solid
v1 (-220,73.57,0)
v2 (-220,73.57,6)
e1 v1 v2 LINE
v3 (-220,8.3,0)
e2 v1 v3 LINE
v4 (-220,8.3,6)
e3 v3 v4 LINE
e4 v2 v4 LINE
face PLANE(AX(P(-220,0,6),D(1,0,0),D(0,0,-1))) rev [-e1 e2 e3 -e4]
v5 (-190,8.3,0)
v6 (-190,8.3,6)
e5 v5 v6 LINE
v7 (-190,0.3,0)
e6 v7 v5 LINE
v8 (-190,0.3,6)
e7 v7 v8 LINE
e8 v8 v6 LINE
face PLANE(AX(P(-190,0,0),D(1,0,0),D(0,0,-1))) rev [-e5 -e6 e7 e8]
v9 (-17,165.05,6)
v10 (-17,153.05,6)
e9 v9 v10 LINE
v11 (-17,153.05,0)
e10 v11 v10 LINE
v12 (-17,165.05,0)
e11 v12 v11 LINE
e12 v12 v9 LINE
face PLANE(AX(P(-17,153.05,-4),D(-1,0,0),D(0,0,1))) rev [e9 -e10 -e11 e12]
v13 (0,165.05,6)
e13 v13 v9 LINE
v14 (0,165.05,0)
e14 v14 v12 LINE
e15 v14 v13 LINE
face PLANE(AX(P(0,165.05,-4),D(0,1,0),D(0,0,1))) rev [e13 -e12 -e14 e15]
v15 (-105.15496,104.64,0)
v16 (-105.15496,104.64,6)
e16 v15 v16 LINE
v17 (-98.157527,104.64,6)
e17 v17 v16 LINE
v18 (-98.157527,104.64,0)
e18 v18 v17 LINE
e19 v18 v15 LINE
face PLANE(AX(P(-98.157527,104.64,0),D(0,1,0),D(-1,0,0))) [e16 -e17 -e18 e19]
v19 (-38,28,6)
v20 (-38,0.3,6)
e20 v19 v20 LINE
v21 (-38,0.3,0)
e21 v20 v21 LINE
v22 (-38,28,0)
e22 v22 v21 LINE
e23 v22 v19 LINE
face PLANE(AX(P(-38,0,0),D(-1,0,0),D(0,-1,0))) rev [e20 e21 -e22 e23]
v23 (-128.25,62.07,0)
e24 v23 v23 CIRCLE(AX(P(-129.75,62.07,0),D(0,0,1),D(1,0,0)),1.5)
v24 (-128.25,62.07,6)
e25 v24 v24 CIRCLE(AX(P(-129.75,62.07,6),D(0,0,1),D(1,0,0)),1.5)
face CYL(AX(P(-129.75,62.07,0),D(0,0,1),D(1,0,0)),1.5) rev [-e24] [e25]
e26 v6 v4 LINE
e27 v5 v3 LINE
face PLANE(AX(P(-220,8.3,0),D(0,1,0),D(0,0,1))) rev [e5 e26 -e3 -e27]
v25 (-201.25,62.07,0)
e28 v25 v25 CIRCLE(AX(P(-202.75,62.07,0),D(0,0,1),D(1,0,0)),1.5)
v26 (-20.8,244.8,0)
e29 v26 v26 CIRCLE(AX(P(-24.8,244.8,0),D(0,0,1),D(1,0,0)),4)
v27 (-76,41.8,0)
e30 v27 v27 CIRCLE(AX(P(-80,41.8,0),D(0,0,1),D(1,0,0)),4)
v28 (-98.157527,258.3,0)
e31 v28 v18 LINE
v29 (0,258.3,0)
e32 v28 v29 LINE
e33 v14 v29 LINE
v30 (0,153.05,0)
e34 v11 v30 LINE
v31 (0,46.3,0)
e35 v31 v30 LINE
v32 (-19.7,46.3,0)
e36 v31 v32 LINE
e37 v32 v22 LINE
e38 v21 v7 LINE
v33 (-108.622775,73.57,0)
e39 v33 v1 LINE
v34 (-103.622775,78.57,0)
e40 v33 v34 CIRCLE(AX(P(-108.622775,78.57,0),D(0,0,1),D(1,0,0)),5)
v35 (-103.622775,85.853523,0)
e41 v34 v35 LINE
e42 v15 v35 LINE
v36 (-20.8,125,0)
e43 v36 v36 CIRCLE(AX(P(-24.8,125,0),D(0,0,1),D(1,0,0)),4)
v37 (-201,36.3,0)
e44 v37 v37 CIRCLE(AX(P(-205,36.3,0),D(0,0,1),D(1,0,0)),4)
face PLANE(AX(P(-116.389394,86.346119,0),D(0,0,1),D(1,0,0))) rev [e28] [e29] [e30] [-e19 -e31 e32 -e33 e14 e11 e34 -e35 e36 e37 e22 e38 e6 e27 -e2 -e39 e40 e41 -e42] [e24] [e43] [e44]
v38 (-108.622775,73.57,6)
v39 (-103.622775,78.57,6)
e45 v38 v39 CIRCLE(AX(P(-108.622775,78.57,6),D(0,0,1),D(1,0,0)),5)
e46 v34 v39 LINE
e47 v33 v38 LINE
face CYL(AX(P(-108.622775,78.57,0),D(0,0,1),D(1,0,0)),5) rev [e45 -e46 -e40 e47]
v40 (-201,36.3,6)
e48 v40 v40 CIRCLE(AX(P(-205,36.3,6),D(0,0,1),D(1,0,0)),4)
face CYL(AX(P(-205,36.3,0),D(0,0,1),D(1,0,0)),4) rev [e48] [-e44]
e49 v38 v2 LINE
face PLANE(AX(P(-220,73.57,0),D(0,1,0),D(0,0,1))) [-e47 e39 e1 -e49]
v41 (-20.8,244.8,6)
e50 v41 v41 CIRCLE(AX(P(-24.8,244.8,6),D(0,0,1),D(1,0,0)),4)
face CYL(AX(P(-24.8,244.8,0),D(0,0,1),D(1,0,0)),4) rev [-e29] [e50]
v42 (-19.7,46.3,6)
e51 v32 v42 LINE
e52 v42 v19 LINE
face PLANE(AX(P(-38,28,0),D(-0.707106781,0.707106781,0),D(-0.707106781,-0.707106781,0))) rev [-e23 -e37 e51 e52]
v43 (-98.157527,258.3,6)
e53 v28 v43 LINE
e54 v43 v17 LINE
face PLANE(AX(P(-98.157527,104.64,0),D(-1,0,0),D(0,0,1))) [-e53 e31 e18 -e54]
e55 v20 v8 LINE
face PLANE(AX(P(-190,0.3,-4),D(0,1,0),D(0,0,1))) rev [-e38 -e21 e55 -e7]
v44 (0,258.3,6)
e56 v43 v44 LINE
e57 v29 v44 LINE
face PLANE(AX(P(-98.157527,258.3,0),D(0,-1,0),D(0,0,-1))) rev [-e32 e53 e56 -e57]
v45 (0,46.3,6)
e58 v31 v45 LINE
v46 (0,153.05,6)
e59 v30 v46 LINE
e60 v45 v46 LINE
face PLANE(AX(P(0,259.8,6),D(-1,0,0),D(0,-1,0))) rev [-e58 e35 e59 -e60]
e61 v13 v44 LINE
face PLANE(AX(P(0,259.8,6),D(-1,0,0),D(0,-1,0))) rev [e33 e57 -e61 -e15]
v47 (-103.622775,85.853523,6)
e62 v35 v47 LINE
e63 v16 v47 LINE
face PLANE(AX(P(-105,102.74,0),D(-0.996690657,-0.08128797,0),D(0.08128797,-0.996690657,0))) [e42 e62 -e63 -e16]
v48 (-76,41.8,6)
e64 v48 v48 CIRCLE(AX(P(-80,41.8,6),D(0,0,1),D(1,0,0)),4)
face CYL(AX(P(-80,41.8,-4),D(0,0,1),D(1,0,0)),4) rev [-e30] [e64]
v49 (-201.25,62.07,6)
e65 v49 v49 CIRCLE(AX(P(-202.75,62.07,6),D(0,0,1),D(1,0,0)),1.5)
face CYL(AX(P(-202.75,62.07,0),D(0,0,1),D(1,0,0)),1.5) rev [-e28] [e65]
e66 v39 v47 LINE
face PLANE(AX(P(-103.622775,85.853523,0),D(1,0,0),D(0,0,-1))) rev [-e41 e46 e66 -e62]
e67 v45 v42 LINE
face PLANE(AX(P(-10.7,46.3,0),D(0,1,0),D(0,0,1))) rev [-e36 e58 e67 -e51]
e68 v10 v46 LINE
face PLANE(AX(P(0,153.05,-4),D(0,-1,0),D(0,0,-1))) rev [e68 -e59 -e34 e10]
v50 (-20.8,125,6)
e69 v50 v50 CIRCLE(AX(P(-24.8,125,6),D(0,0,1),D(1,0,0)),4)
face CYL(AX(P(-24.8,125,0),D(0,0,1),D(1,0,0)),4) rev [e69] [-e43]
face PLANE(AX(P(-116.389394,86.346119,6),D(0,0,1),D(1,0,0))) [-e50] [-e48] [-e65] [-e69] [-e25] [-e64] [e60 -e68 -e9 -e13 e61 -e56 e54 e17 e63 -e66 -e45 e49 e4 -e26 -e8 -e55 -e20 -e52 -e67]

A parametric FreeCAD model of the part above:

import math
import FreeCAD as App
import Part
import Sketcher
Q = App.Units.Quantity

doc = App.newDocument("Part")
body = doc.addObject("PartDesign::Body", "Body")

# Sketch on XY plane
sketch1 = doc.addObject("Sketcher::SketchObject", "Sketch")
body.addObject(sketch1)
sketch1.AttachmentSupport = (doc.XY_Plane, [""])
sketch1.MapMode = "FlatFace"
sketch1.addGeometry(Part.LineSegment(App.Vector(-220, 0, 0), App.Vector(0, 0, 0)), False)
sketch1.addGeometry(Part.LineSegment(App.Vector(0, 0, 0), App.Vector(0, 259.8, 0)), False)
sketch1.addGeometry(Part.LineSegment(App.Vector(0, 259.8, 0), App.Vector(-60, 259.8, 0)), False)
sketch1.addGeometry(Part.LineSegment(App.Vector(-60, 259.8, 0), App.Vector(-101.894274, 82.913064, 0)), False)
sketch1.addGeometry(Part.ArcOfCircle(Part.Circle(App.Vector(-116.389394, 86.346119, 0), App.Vector(0, 0, 1), 14.896119), math.radians(-90), math.radians(-13.324531)), False)
sketch1.addGeometry(Part.LineSegment(App.Vector(-116.389394, 71.45, 0), App.Vector(-220, 71.45, 0)), False)
sketch1.addGeometry(Part.LineSegment(App.Vector(-220, 71.45, 0), App.Vector(-220, 0, 0)), False)
sketch1.addConstraint(Sketcher.Constraint("Coincident", 0, 2, 1, 1))
sketch1.addConstraint(Sketcher.Constraint("Coincident", 1, 2, 2, 1))
sketch1.addConstraint(Sketcher.Constraint("Coincident", 2, 2, 3, 1))
sketch1.addConstraint(Sketcher.Constraint("Tangent", 3, 2, 4, 2))
sketch1.addConstraint(Sketcher.Constraint("Tangent", 4, 1, 5, 1))
sketch1.addConstraint(Sketcher.Constraint("Coincident", 5, 2, 6, 1))
sketch1.addConstraint(Sketcher.Constraint("Coincident", 6, 2, 0, 1))
sketch1.addConstraint(Sketcher.Constraint("Horizontal", 0))
sketch1.addConstraint(Sketcher.Constraint("Vertical", 1))
sketch1.addConstraint(Sketcher.Constraint("Horizontal", 2))
sketch1.addConstraint(Sketcher.Constraint("Horizontal", 5))
sketch1.addConstraint(Sketcher.Constraint("Vertical", 6))
sketch1.addConstraint(Sketcher.Constraint("Coincident", 0, 2, -1, 1))
sketch1.addConstraint(Sketcher.Constraint("DistanceX", 0, 1, 0, 2, 220.0))
sketch1.addConstraint(Sketcher.Constraint("DistanceX", 2, 2, 2, 1, 60.0))
sketch1.addConstraint(Sketcher.Constraint("DistanceY", 1, 1, 1, 2, 259.8))
sketch1.addConstraint(Sketcher.Constraint("DistanceY", 6, 2, 6, 1, 71.45))
sketch1.addConstraint(Sketcher.Constraint("Radius", 4, 14.896119))
sketch1.addConstraint(Sketcher.Constraint("DistanceX", 5, 2, 5, 1, 103.610606))
pad1 = doc.addObject("PartDesign::Pad", "Pad")
body.addObject(pad1)
pad1.Profile = sketch1
pad1.Length = 6

# Sketch on XY plane
sketch2 = doc.addObject("Sketcher::SketchObject", "Sketch001")
body.addObject(sketch2)
sketch2.AttachmentSupport = (doc.XY_Plane, [""])
sketch2.MapMode = "FlatFace"
sketch2.AttachmentOffset = App.Placement(App.Vector(0, 0, 6), App.Rotation())
sketch2.addGeometry(Part.Circle(App.Vector(-205, 36.3, 0), App.Vector(0, 0, 1), 4), False)
sketch2.addGeometry(Part.Circle(App.Vector(-24.8, 244.8, 0), App.Vector(0, 0, 1), 4), False)
sketch2.addGeometry(Part.Circle(App.Vector(-24.8, 125, 0), App.Vector(0, 0, 1), 4), False)
sketch2.addGeometry(Part.Circle(App.Vector(-80, 36.3, 0), App.Vector(0, 0, 1), 4), False)
sketch2.addGeometry(Part.LineSegment(App.Vector(-220, 8.3, 0), App.Vector(-220, 0, 0)), False)
sketch2.addGeometry(Part.LineSegment(App.Vector(-220, 0, 0), App.Vector(-190, 0, 0)), False)
sketch2.addGeometry(Part.LineSegment(App.Vector(-190, 0, 0), App.Vector(-190, 8.3, 0)), False)
sketch2.addGeometry(Part.LineSegment(App.Vector(-190, 8.3, 0), App.Vector(-220, 8.3, 0)), False)
sketch2.addGeometry(Part.LineSegment(App.Vector(-38, 19, 0), App.Vector(-38, 0, 0)), False)
sketch2.addGeometry(Part.LineSegment(App.Vector(-38, 0, 0), App.Vector(0, 0, 0)), False)
sketch2.addGeometry(Part.LineSegment(App.Vector(0, 0, 0), App.Vector(0, 46.3, 0)), False)
sketch2.addGeometry(Part.LineSegment(App.Vector(0, 46.3, 0), App.Vector(-10.7, 46.3, 0)), False)
sketch2.addGeometry(Part.LineSegment(App.Vector(-10.7, 46.3, 0), App.Vector(-38, 19, 0)), False)
sketch2.addConstraint(Sketcher.Constraint("Coincident", 4, 2, 5, 1))
sketch2.addConstraint(Sketcher.Constraint("Coincident", 5, 2, 6, 1))
sketch2.addConstraint(Sketcher.Constraint("Coincident", 6, 2, 7, 1))
sketch2.addConstraint(Sketcher.Constraint("Coincident", 7, 2, 4, 1))
sketch2.addConstraint(Sketcher.Constraint("Coincident", 8, 2, 9, 1))
sketch2.addConstraint(Sketcher.Constraint("Coincident", 9, 2, 10, 1))
sketch2.addConstraint(Sketcher.Constraint("Coincident", 10, 2, 11, 1))
sketch2.addConstraint(Sketcher.Constraint("Coincident", 11, 2, 12, 1))
sketch2.addConstraint(Sketcher.Constraint("Coincident", 12, 2, 8, 1))
sketch2.addConstraint(Sketcher.Constraint("Vertical", 4))
sketch2.addConstraint(Sketcher.Constraint("Horizontal", 5))
sketch2.addConstraint(Sketcher.Constraint("Vertical", 6))
sketch2.addConstraint(Sketcher.Constraint("Horizontal", 7))
sketch2.addConstraint(Sketcher.Constraint("Vertical", 8))
sketch2.addConstraint(Sketcher.Constraint("Horizontal", 9))
sketch2.addConstraint(Sketcher.Constraint("Vertical", 10))
sketch2.addConstraint(Sketcher.Constraint("Horizontal", 11))
sketch2.addConstraint(Sketcher.Constraint("Coincident", 9, 2, -1, 1))
sketch2.addConstraint(Sketcher.Constraint("Equal", 0, 1))
sketch2.addConstraint(Sketcher.Constraint("Equal", 1, 2))
sketch2.addConstraint(Sketcher.Constraint("Equal", 2, 3))
sketch2.addConstraint(Sketcher.Constraint("PointOnObject", 4, 2, -1))
sketch2.addConstraint(Sketcher.Constraint("Horizontal", 0, 3, 3, 3))
sketch2.addConstraint(Sketcher.Constraint("Vertical", 1, 3, 2, 3))
sketch2.addConstraint(Sketcher.Constraint("Diameter", 0, 8.0))
sketch2.addConstraint(Sketcher.Constraint("DistanceX", 5, 1, 5, 2, 30.0))
sketch2.addConstraint(Sketcher.Constraint("DistanceX", 9, 1, 9, 2, 38.0))
sketch2.addConstraint(Sketcher.Constraint("DistanceY", 8, 2, 8, 1, 19.0))
sketch2.addConstraint(Sketcher.Constraint("Angle", 12, Q("-135 deg")))
sketch2.addConstraint(Sketcher.Constraint("DistanceX", 11, 2, 11, 1, 10.7))
sketch2.addConstraint(Sketcher.Constraint("DistanceY", 4, 2, 4, 1, 8.3))
sketch2.addConstraint(Sketcher.Constraint("DistanceX", 0, 3, -1, 1, 205.0))
sketch2.addConstraint(Sketcher.Constraint("DistanceY", -1, 1, 2, 3, 125.0))
sketch2.addConstraint(Sketcher.Constraint("DistanceX", 3, 3, -1, 1, 80.0))
sketch2.addConstraint(Sketcher.Constraint("DistanceX", 4, 2, -1, 1, 220.0))
sketch2.addConstraint(Sketcher.Constraint("DistanceY", 6, 2, 0, 3, 28.0))
sketch2.addConstraint(Sketcher.Constraint("DistanceX", 1, 3, -1, 1, 24.8))
sketch2.addConstraint(Sketcher.Constraint("DistanceY", -1, 1, 1, 3, 244.8))
pocket1 = doc.addObject("PartDesign::Pocket", "Pocket")
body.addObject(pocket1)
pocket1.Profile = sketch2
pocket1.Type = "ThroughAll"

# Sketch on XY plane
sketch3 = doc.addObject("Sketcher::SketchObject", "Sketch002")
body.addObject(sketch3)
sketch3.AttachmentSupport = (doc.XY_Plane, [""])
sketch3.MapMode = "FlatFace"
sketch3.AttachmentOffset = App.Placement(App.Vector(0, 0, 6), App.Rotation())
sketch3.addGeometry(Part.LineSegment(App.Vector(-220, 73.01, 0), App.Vector(-220, 71.45, 0)), False)
sketch3.addGeometry(Part.LineSegment(App.Vector(-220, 71.45, 0), App.Vector(-116.389394, 71.45, 0)), False)
sketch3.addGeometry(Part.LineSegment(App.Vector(-116.389394, 71.45, 0), App.Vector(-116.389394, 73.01, 0)), False)
sketch3.addGeometry(Part.LineSegment(App.Vector(-116.389394, 73.01, 0), App.Vector(-220, 73.01, 0)), False)
sketch3.addConstraint(Sketcher.Constraint("Coincident", 0, 2, 1, 1))
sketch3.addConstraint(Sketcher.Constraint("Coincident", 1, 2, 2, 1))
sketch3.addConstraint(Sketcher.Constraint("Coincident", 2, 2, 3, 1))
sketch3.addConstraint(Sketcher.Constraint("Coincident", 3, 2, 0, 1))
sketch3.addConstraint(Sketcher.Constraint("Vertical", 0))
sketch3.addConstraint(Sketcher.Constraint("Horizontal", 1))
sketch3.addConstraint(Sketcher.Constraint("Vertical", 2))
sketch3.addConstraint(Sketcher.Constraint("Horizontal", 3))
sketch3.addConstraint(Sketcher.Constraint("DistanceX", 0, 2, -1, 1, 220.0))
sketch3.addConstraint(Sketcher.Constraint("DistanceY", 0, 2, 0, 1, 1.56))
sketch3.addConstraint(Sketcher.Constraint("DistanceY", -1, 1, 0, 2, 71.45))
sketch3.addConstraint(Sketcher.Constraint("DistanceX", 1, 1, 1, 2, 103.610606))
pad2 = doc.addObject("PartDesign::Pad", "Pad001")
body.addObject(pad2)
pad2.Profile = sketch3
pad2.Length = 6
pad2.Reversed = True

# Sketch on XY plane
sketch4 = doc.addObject("Sketcher::SketchObject", "Sketch003")
body.addObject(sketch4)
sketch4.AttachmentSupport = (doc.XY_Plane, [""])
sketch4.MapMode = "FlatFace"
sketch4.AttachmentOffset = App.Placement(App.Vector(0, 0, 6), App.Rotation())
sketch4.addGeometry(Part.LineSegment(App.Vector(-103.41228, 83.272592, 0), App.Vector(-101.894274, 82.913064, 0)), False)
sketch4.addGeometry(Part.LineSegment(App.Vector(-101.894274, 82.913064, 0), App.Vector(-60, 259.8, 0)), False)
sketch4.addGeometry(Part.LineSegment(App.Vector(-60, 259.8, 0), App.Vector(-103.41228, 83.272592, 0)), False)
sketch4.addConstraint(Sketcher.Constraint("Coincident", 0, 2, 1, 1))
sketch4.addConstraint(Sketcher.Constraint("Coincident", 1, 2, 2, 1))
sketch4.addConstraint(Sketcher.Constraint("Coincident", 2, 2, 0, 1))
sketch4.addConstraint(Sketcher.Constraint("Perpendicular", 0, 1))
sketch4.addConstraint(Sketcher.Constraint("DistanceX", 1, 2, -1, 1, 60.0))
sketch4.addConstraint(Sketcher.Constraint("DistanceY", -1, 1, 1, 2, 259.8))
sketch4.addConstraint(Sketcher.Constraint("Distance", 0, 1.56))
sketch4.addConstraint(Sketcher.Constraint("DistanceX", 2, 2, -1, 1, 103.41228))
sketch4.addConstraint(Sketcher.Constraint("DistanceY", -1, 1, 2, 2, 83.272592))
pad3 = doc.addObject("PartDesign::Pad", "Pad002")
body.addObject(pad3)
pad3.Profile = sketch4
pad3.Length = 6
pad3.Reversed = True

# Sketch on XY plane
sketch5 = doc.addObject("Sketcher::SketchObject", "Sketch004")
body.addObject(sketch5)
sketch5.AttachmentSupport = (doc.XY_Plane, [""])
sketch5.MapMode = "FlatFace"
sketch5.addGeometry(Part.LineSegment(App.Vector(-101.894274, 82.913064, 0), App.Vector(-103.41228, 83.272592, 0)), False)
sketch5.addGeometry(Part.ArcOfCircle(Part.Circle(App.Vector(-116.389394, 86.346119, 0), App.Vector(0, 0, 1), 13.336119), math.radians(-90), math.radians(-13.324531)), False)
sketch5.addGeometry(Part.LineSegment(App.Vector(-116.389394, 73.01, 0), App.Vector(-116.389394, 71.45, 0)), False)
sketch5.addGeometry(Part.ArcOfCircle(Part.Circle(App.Vector(-116.389394, 86.346119, 0), App.Vector(0, 0, 1), 14.896119), math.radians(-90), math.radians(-13.324531)), False)
sketch5.addConstraint(Sketcher.Constraint("Coincident", 0, 2, 1, 2))
sketch5.addConstraint(Sketcher.Constraint("Coincident", 1, 1, 2, 1))
sketch5.addConstraint(Sketcher.Constraint("Coincident", 2, 2, 3, 1))
sketch5.addConstraint(Sketcher.Constraint("Coincident", 3, 2, 0, 1))
sketch5.addConstraint(Sketcher.Constraint("Vertical", 2))
sketch5.addConstraint(Sketcher.Constraint("Coincident", 3, 3, 1, 3))
sketch5.addConstraint(Sketcher.Constraint("Vertical", 3, 3, 1, 1))
sketch5.addConstraint(Sketcher.Constraint("DistanceY", 2, 2, 2, 1, 1.56))
sketch5.addConstraint(Sketcher.Constraint("DistanceY", -1, 1, 1, 1, 73.01))
sketch5.addConstraint(Sketcher.Constraint("Radius", 1, 13.336119))
sketch5.addConstraint(Sketcher.Constraint("DistanceX", 0, 2, -1, 1, 103.41228))
sketch5.addConstraint(Sketcher.Constraint("DistanceY", -1, 1, 0, 2, 83.272592))
sketch5.addConstraint(Sketcher.Constraint("DistanceX", 1, 3, 3, 2, 14.495119))
pad4 = doc.addObject("PartDesign::Pad", "Pad003")
body.addObject(pad4)
pad4.Profile = sketch5
pad4.Length = 6

# Sketch on XY plane
sketch6 = doc.addObject("Sketcher::SketchObject", "Sketch005")
body.addObject(sketch6)
sketch6.AttachmentSupport = (doc.XY_Plane, [""])
sketch6.MapMode = "FlatFace"
sketch6.AttachmentOffset = App.Placement(App.Vector(0, 0, 6), App.Rotation())
sketch6.addGeometry(Part.LineSegment(App.Vector(-55, 102.74, 0), App.Vector(-105, 102.74, 0)), False)
sketch6.addGeometry(Part.LineSegment(App.Vector(-105, 102.74, 0), App.Vector(-103.41228, 83.272592, 0)), False)
sketch6.addGeometry(Part.LineSegment(App.Vector(-103.41228, 83.272592, 0), App.Vector(-55, 102.74, 0)), False)
sketch6.addConstraint(Sketcher.Constraint("Coincident", 0, 2, 1, 1))
sketch6.addConstraint(Sketcher.Constraint("Coincident", 1, 2, 2, 1))
sketch6.addConstraint(Sketcher.Constraint("Coincident", 2, 2, 0, 1))
sketch6.addConstraint(Sketcher.Constraint("Horizontal", 0))
sketch6.addConstraint(Sketcher.Constraint("DistanceX", 0, 2, 0, 1, 50.0))
sketch6.addConstraint(Sketcher.Constraint("DistanceX", 0, 2, -1, 1, 105.0))
sketch6.addConstraint(Sketcher.Constraint("DistanceY", -1, 1, 0, 2, 102.74))
sketch6.addConstraint(Sketcher.Constraint("DistanceX", 1, 2, -1, 1, 103.41228))
sketch6.addConstraint(Sketcher.Constraint("DistanceY", -1, 1, 1, 2, 83.272592))
pad5 = doc.addObject("PartDesign::Pad", "Pad004")
body.addObject(pad5)
pad5.Profile = sketch6
pad5.Length = 6
pad5.Reversed = True

# Sketch on XY plane
sketch7 = doc.addObject("Sketcher::SketchObject", "Sketch006")
body.addObject(sketch7)
sketch7.AttachmentSupport = (doc.XY_Plane, [""])
sketch7.MapMode = "FlatFace"
sketch7.AttachmentOffset = App.Placement(App.Vector(0, 0, 6), App.Rotation())
sketch7.addGeometry(Part.LineSegment(App.Vector(-98.157527, 104.64, 0), App.Vector(-105.15496, 104.64, 0)), False)
sketch7.addGeometry(Part.LineSegment(App.Vector(-105.15496, 104.64, 0), App.Vector(-105, 102.74, 0)), False)
sketch7.addGeometry(Part.LineSegment(App.Vector(-105, 102.74, 0), App.Vector(-98.624782, 102.74, 0)), False)
sketch7.addGeometry(Part.LineSegment(App.Vector(-98.624782, 102.74, 0), App.Vector(-98.157527, 104.64, 0)), False)
sketch7.addConstraint(Sketcher.Constraint("Coincident", 0, 2, 1, 1))
sketch7.addConstraint(Sketcher.Constraint("Coincident", 1, 2, 2, 1))
sketch7.addConstraint(Sketcher.Constraint("Coincident", 2, 2, 3, 1))
sketch7.addConstraint(Sketcher.Constraint("Coincident", 3, 2, 0, 1))
sketch7.addConstraint(Sketcher.Constraint("Horizontal", 0))
sketch7.addConstraint(Sketcher.Constraint("Horizontal", 2))
sketch7.addConstraint(Sketcher.Constraint("DistanceX", 1, 2, -1, 1, 105.0))
sketch7.addConstraint(Sketcher.Constraint("DistanceY", 1, 2, 0, 2, 1.9))
sketch7.addConstraint(Sketcher.Constraint("DistanceY", -1, 1, 0, 2, 104.64))
sketch7.addConstraint(Sketcher.Constraint("DistanceX", 2, 1, 2, 2, 6.375218))
sketch7.addConstraint(Sketcher.Constraint("Distance", 1, 1.906309))
sketch7.addConstraint(Sketcher.Constraint("Distance", 3, 1.956611))
pad6 = doc.addObject("PartDesign::Pad", "Pad005")
body.addObject(pad6)
pad6.Profile = sketch7
pad6.Length = 6
pad6.Reversed = True

# Sketch on XY plane
sketch8 = doc.addObject("Sketcher::SketchObject", "Sketch007")
body.addObject(sketch8)
sketch8.AttachmentSupport = (doc.XY_Plane, [""])
sketch8.MapMode = "FlatFace"
sketch8.AttachmentOffset = App.Placement(App.Vector(0, 0, 6), App.Rotation())
sketch8.addGeometry(Part.LineSegment(App.Vector(-220, 73.57, 0), App.Vector(-220, 73.01, 0)), False)
sketch8.addGeometry(Part.LineSegment(App.Vector(-220, 73.01, 0), App.Vector(-116.389394, 73.01, 0)), False)
sketch8.addGeometry(Part.LineSegment(App.Vector(-116.389394, 73.01, 0), App.Vector(-116.389394, 73.57, 0)), False)
sketch8.addGeometry(Part.LineSegment(App.Vector(-116.389394, 73.57, 0), App.Vector(-220, 73.57, 0)), False)
sketch8.addConstraint(Sketcher.Constraint("Coincident", 0, 2, 1, 1))
sketch8.addConstraint(Sketcher.Constraint("Coincident", 1, 2, 2, 1))
sketch8.addConstraint(Sketcher.Constraint("Coincident", 2, 2, 3, 1))
sketch8.addConstraint(Sketcher.Constraint("Coincident", 3, 2, 0, 1))
sketch8.addConstraint(Sketcher.Constraint("Vertical", 0))
sketch8.addConstraint(Sketcher.Constraint("Horizontal", 1))
sketch8.addConstraint(Sketcher.Constraint("Vertical", 2))
sketch8.addConstraint(Sketcher.Constraint("Horizontal", 3))
sketch8.addConstraint(Sketcher.Constraint("DistanceX", 0, 2, -1, 1, 220.0))
sketch8.addConstraint(Sketcher.Constraint("DistanceY", 0, 2, 0, 1, 0.56))
sketch8.addConstraint(Sketcher.Constraint("DistanceY", -1, 1, 0, 2, 73.01))
sketch8.addConstraint(Sketcher.Constraint("DistanceX", 1, 1, 1, 2, 103.610606))
pad7 = doc.addObject("PartDesign::Pad", "Pad006")
body.addObject(pad7)
pad7.Profile = sketch8
pad7.Length = 6
pad7.Reversed = True

# Sketch on XY plane
sketch9 = doc.addObject("Sketcher::SketchObject", "Sketch008")
body.addObject(sketch9)
sketch9.AttachmentSupport = (doc.XY_Plane, [""])
sketch9.MapMode = "FlatFace"
sketch9.AttachmentOffset = App.Placement(App.Vector(0, 0, 6), App.Rotation())
sketch9.addGeometry(Part.LineSegment(App.Vector(-116.389394, 73.57, 0), App.Vector(-117.988805, 71.652693, 0)), False)
sketch9.addGeometry(Part.LineSegment(App.Vector(-117.988805, 71.652693, 0), App.Vector(-105.380568, 73.057717, 0)), False)
sketch9.addGeometry(Part.LineSegment(App.Vector(-105.380568, 73.057717, 0), App.Vector(-100.684832, 83.373546, 0)), False)
sketch9.addGeometry(Part.LineSegment(App.Vector(-100.684832, 83.373546, 0), App.Vector(-103.622775, 85.853523, 0)), False)
sketch9.addGeometry(Part.ArcOfCircle(Part.Circle(App.Vector(-116.389394, 86.346119, 0), App.Vector(0, 0, 1), 12.776119), math.radians(-90), math.radians(-2.209641)), False)
sketch9.addConstraint(Sketcher.Constraint("Coincident", 0, 2, 1, 1))
sketch9.addConstraint(Sketcher.Constraint("Coincident", 1, 2, 2, 1))
sketch9.addConstraint(Sketcher.Constraint("Coincident", 2, 2, 3, 1))
sketch9.addConstraint(Sketcher.Constraint("Coincident", 3, 2, 4, 2))
sketch9.addConstraint(Sketcher.Constraint("Coincident", 4, 1, 0, 1))
sketch9.addConstraint(Sketcher.Constraint("DistanceY", -1, 1, 4, 1, 73.57))
sketch9.addConstraint(Sketcher.Constraint("Radius", 4, 12.776119))
sketch9.addConstraint(Sketcher.Constraint("DistanceY", 1, 2, 4, 3, 13.288402))
sketch9.addConstraint(Sketcher.Constraint("Distance", 1, 12.68628))
sketch9.addConstraint(Sketcher.Constraint("Distance", 3, 3.84471))
sketch9.addConstraint(Sketcher.Constraint("DistanceX", 1, 2, -1, 1, 105.380568))
sketch9.addConstraint(Sketcher.Constraint("DistanceX", 0, 2, 4, 3, 1.599411))
sketch9.addConstraint(Sketcher.Constraint("DistanceY", 1, 2, 2, 2, 10.31583))
sketch9.addConstraint(Sketcher.Constraint("DistanceX", 4, 3, 2, 2, 15.704561))
sketch9.addConstraint(Sketcher.Constraint("DistanceY", 0, 2, 3, 2, 14.20083))
sketch9.addConstraint(Sketcher.Constraint("DistanceX", 0, 2, 4, 1, 1.599411))
pad8 = doc.addObject("PartDesign::Pad", "Pad007")
body.addObject(pad8)
pad8.Profile = sketch9
pad8.Length = 6
pad8.Reversed = True

# Sketch on XY plane
sketch10 = doc.addObject("Sketcher::SketchObject", "Sketch009")
body.addObject(sketch10)
sketch10.AttachmentSupport = (doc.XY_Plane, [""])
sketch10.MapMode = "FlatFace"
sketch10.AttachmentOffset = App.Placement(App.Vector(0, 0, 6), App.Rotation())
sketch10.addGeometry(Part.Circle(App.Vector(-202.75, 62.07, 0), App.Vector(0, 0, 1), 1.5), False)
sketch10.addGeometry(Part.Circle(App.Vector(-129.75, 62.07, 0), App.Vector(0, 0, 1), 1.5), False)
sketch10.addConstraint(Sketcher.Constraint("Equal", 0, 1))
sketch10.addConstraint(Sketcher.Constraint("Horizontal", 0, 3, 1, 3))
sketch10.addConstraint(Sketcher.Constraint("Diameter", 0, 3.0))
sketch10.addConstraint(Sketcher.Constraint("DistanceX", 0, 3, 1, 3, 73.0))
sketch10.addConstraint(Sketcher.Constraint("DistanceX", 0, 3, -1, 1, 202.75))
sketch10.addConstraint(Sketcher.Constraint("DistanceY", -1, 1, 0, 3, 62.07))
pocket2 = doc.addObject("PartDesign::Pocket", "Pocket001")
body.addObject(pocket2)
pocket2.Profile = sketch10
pocket2.Type = "ThroughAll"

# Sketch on XY plane
sketch11 = doc.addObject("Sketcher::SketchObject", "Sketch010")
body.addObject(sketch11)
sketch11.AttachmentSupport = (doc.XY_Plane, [""])
sketch11.MapMode = "FlatFace"
sketch11.AttachmentOffset = App.Placement(App.Vector(0, 0, 6), App.Rotation())
sketch11.addGeometry(Part.LineSegment(App.Vector(-103.622775, 78.57, 0), App.Vector(-103.622775, 85.853523, 0)), False)
sketch11.addGeometry(Part.ArcOfCircle(Part.Circle(App.Vector(-116.389394, 86.346119, 0), App.Vector(0, 0, 1), 12.776119), math.radians(-90), math.radians(-2.209641)), False)
sketch11.addGeometry(Part.LineSegment(App.Vector(-116.389394, 73.57, 0), App.Vector(-108.622775, 73.57, 0)), False)
sketch11.addGeometry(Part.ArcOfCircle(Part.Circle(App.Vector(-108.622775, 78.57, 0), App.Vector(0, 0, 1), 5), math.radians(-90), math.radians(0)), False)
sketch11.addConstraint(Sketcher.Constraint("Coincident", 0, 2, 1, 2))
sketch11.addConstraint(Sketcher.Constraint("Tangent", 1, 1, 2, 1))
sketch11.addConstraint(Sketcher.Constraint("Tangent", 2, 2, 3, 1))
sketch11.addConstraint(Sketcher.Constraint("Tangent", 3, 2, 0, 1))
sketch11.addConstraint(Sketcher.Constraint("Vertical", 0))
sketch11.addConstraint(Sketcher.Constraint("Horizontal", 2))
sketch11.addConstraint(Sketcher.Constraint("Radius", 3, 5.0))
sketch11.addConstraint(Sketcher.Constraint("DistanceY", -1, 1, 3, 3, 78.57))
sketch11.addConstraint(Sketcher.Constraint("Radius", 1, 12.776119))
sketch11.addConstraint(Sketcher.Constraint("DistanceX", 2, 1, 2, 2, 7.766619))
sketch11.addConstraint(Sketcher.Constraint("DistanceX", 1, 3, -1, 1, 116.389394))
pocket3 = doc.addObject("PartDesign::Pocket", "Pocket002")
body.addObject(pocket3)
pocket3.Profile = sketch11
pocket3.Type = "ThroughAll"

# Sketch on XY plane
sketch12 = doc.addObject("Sketcher::SketchObject", "Sketch011")
body.addObject(sketch12)
sketch12.AttachmentSupport = (doc.XY_Plane, [""])
sketch12.MapMode = "FlatFace"
sketch12.AttachmentOffset = App.Placement(App.Vector(0, 0, 6), App.Rotation())
sketch12.addGeometry(Part.LineSegment(App.Vector(-190, 0.3, 0), App.Vector(-190, 0, 0)), False)
sketch12.addGeometry(Part.LineSegment(App.Vector(-190, 0, 0), App.Vector(-38, 0, 0)), False)
sketch12.addGeometry(Part.LineSegment(App.Vector(-38, 0, 0), App.Vector(-38, 0.3, 0)), False)
sketch12.addGeometry(Part.LineSegment(App.Vector(-38, 0.3, 0), App.Vector(-190, 0.3, 0)), False)
sketch12.addConstraint(Sketcher.Constraint("Coincident", 0, 2, 1, 1))
sketch12.addConstraint(Sketcher.Constraint("Coincident", 1, 2, 2, 1))
sketch12.addConstraint(Sketcher.Constraint("Coincident", 2, 2, 3, 1))
sketch12.addConstraint(Sketcher.Constraint("Coincident", 3, 2, 0, 1))
sketch12.addConstraint(Sketcher.Constraint("Vertical", 0))
sketch12.addConstraint(Sketcher.Constraint("Horizontal", 1))
sketch12.addConstraint(Sketcher.Constraint("Vertical", 2))
sketch12.addConstraint(Sketcher.Constraint("Horizontal", 3))
sketch12.addConstraint(Sketcher.Constraint("PointOnObject", 0, 2, -1))
sketch12.addConstraint(Sketcher.Constraint("DistanceX", 1, 1, 1, 2, 152.0))
sketch12.addConstraint(Sketcher.Constraint("DistanceY", 0, 2, 0, 1, 0.3))
sketch12.addConstraint(Sketcher.Constraint("DistanceX", 0, 2, -1, 1, 190.0))
pocket4 = doc.addObject("PartDesign::Pocket", "Pocket003")
body.addObject(pocket4)
pocket4.Profile = sketch12
pocket4.Length = 10

# Sketch on XY plane
sketch13 = doc.addObject("Sketcher::SketchObject", "Sketch012")
body.addObject(sketch13)
sketch13.AttachmentSupport = (doc.XY_Plane, [""])
sketch13.MapMode = "FlatFace"
sketch13.AttachmentOffset = App.Placement(App.Vector(0, 0, 6), App.Rotation())
sketch13.addGeometry(Part.LineSegment(App.Vector(-10.7, 46.3, 0), App.Vector(-19.7, 46.3, 0)), False)
sketch13.addGeometry(Part.LineSegment(App.Vector(-19.7, 46.3, 0), App.Vector(-38, 28, 0)), False)
sketch13.addGeometry(Part.LineSegment(App.Vector(-38, 28, 0), App.Vector(-38, 19, 0)), False)
sketch13.addGeometry(Part.LineSegment(App.Vector(-38, 19, 0), App.Vector(-10.7, 46.3, 0)), False)
sketch13.addConstraint(Sketcher.Constraint("Coincident", 0, 2, 1, 1))
sketch13.addConstraint(Sketcher.Constraint("Coincident", 1, 2, 2, 1))
sketch13.addConstraint(Sketcher.Constraint("Coincident", 2, 2, 3, 1))
sketch13.addConstraint(Sketcher.Constraint("Coincident", 3, 2, 0, 1))
sketch13.addConstraint(Sketcher.Constraint("Horizontal", 0))
sketch13.addConstraint(Sketcher.Constraint("Vertical", 2))
sketch13.addConstraint(Sketcher.Constraint("Parallel", 1, 3))
sketch13.addConstraint(Sketcher.Constraint("Equal", 0, 2))
sketch13.addConstraint(Sketcher.Constraint("DistanceX", 0, 2, 0, 1, 9.0))
sketch13.addConstraint(Sketcher.Constraint("DistanceX", 1, 2, -1, 1, 38.0))
sketch13.addConstraint(Sketcher.Constraint("DistanceY", -1, 1, 1, 2, 28.0))
sketch13.addConstraint(Sketcher.Constraint("DistanceX", 0, 2, -1, 1, 19.7))
pocket5 = doc.addObject("PartDesign::Pocket", "Pocket004")
body.addObject(pocket5)
pocket5.Profile = sketch13
pocket5.Length = 6

# Sketch on XY plane
sketch14 = doc.addObject("Sketcher::SketchObject", "Sketch013")
body.addObject(sketch14)
sketch14.AttachmentSupport = (doc.XY_Plane, [""])
sketch14.MapMode = "FlatFace"
sketch14.AttachmentOffset = App.Placement(App.Vector(0, 0, 6), App.Rotation())
sketch14.addGeometry(Part.LineSegment(App.Vector(-17, 165.05, 0), App.Vector(-17, 153.05, 0)), False)
sketch14.addGeometry(Part.LineSegment(App.Vector(-17, 153.05, 0), App.Vector(0, 153.05, 0)), False)
sketch14.addGeometry(Part.LineSegment(App.Vector(0, 153.05, 0), App.Vector(0, 165.05, 0)), False)
sketch14.addGeometry(Part.LineSegment(App.Vector(0, 165.05, 0), App.Vector(-17, 165.05, 0)), False)
sketch14.addConstraint(Sketcher.Constraint("Coincident", 0, 2, 1, 1))
sketch14.addConstraint(Sketcher.Constraint("Coincident", 1, 2, 2, 1))
sketch14.addConstraint(Sketcher.Constraint("Coincident", 2, 2, 3, 1))
sketch14.addConstraint(Sketcher.Constraint("Coincident", 3, 2, 0, 1))
sketch14.addConstraint(Sketcher.Constraint("Vertical", 0))
sketch14.addConstraint(Sketcher.Constraint("Horizontal", 1))
sketch14.addConstraint(Sketcher.Constraint("Vertical", 2))
sketch14.addConstraint(Sketcher.Constraint("Horizontal", 3))
sketch14.addConstraint(Sketcher.Constraint("PointOnObject", 1, 2, -2))
sketch14.addConstraint(Sketcher.Constraint("DistanceX", 1, 1, 1, 2, 17.0))
sketch14.addConstraint(Sketcher.Constraint("DistanceY", 0, 2, 0, 1, 12.0))
sketch14.addConstraint(Sketcher.Constraint("DistanceY", -1, 1, 0, 2, 153.05))
pocket6 = doc.addObject("PartDesign::Pocket", "Pocket005")
body.addObject(pocket6)
pocket6.Profile = sketch14
pocket6.Length = 10

# Sketch on XY plane
sketch15 = doc.addObject("Sketcher::SketchObject", "Sketch014")
body.addObject(sketch15)
sketch15.AttachmentSupport = (doc.XY_Plane, [""])
sketch15.MapMode = "FlatFace"
sketch15.AttachmentOffset = App.Placement(App.Vector(0, 0, 6), App.Rotation())
sketch15.addGeometry(Part.Circle(App.Vector(-80, 41.8, 0), App.Vector(0, 0, 1), 4), False)
sketch15.addConstraint(Sketcher.Constraint("Diameter", 0, 8.0))
sketch15.addConstraint(Sketcher.Constraint("DistanceX", 0, 3, -1, 1, 80.0))
sketch15.addConstraint(Sketcher.Constraint("DistanceY", -1, 1, 0, 3, 41.8))
pocket7 = doc.addObject("PartDesign::Pocket", "Pocket006")
body.addObject(pocket7)
pocket7.Profile = sketch15
pocket7.Length = 10

# Sketch on XY plane
sketch16 = doc.addObject("Sketcher::SketchObject", "Sketch015")
body.addObject(sketch16)
sketch16.AttachmentSupport = (doc.XY_Plane, [""])
sketch16.MapMode = "FlatFace"
sketch16.AttachmentOffset = App.Placement(App.Vector(0, 0, 6), App.Rotation())
sketch16.addGeometry(Part.ArcOfCircle(Part.Circle(App.Vector(-80, 41.8, 0), App.Vector(0, 0, 1), 4), math.radians(-136.567463), math.radians(-43.432537)), False)
sketch16.addGeometry(Part.ArcOfCircle(Part.Circle(App.Vector(-80, 36.3, 0), App.Vector(0, 0, 1), 4), math.radians(136.567463), math.radians(403.432537)), False)
sketch16.addConstraint(Sketcher.Constraint("Coincident", 0, 1, 1, 1))
sketch16.addConstraint(Sketcher.Constraint("Coincident", 1, 2, 0, 2))
sketch16.addConstraint(Sketcher.Constraint("Equal", 0, 1))
sketch16.addConstraint(Sketcher.Constraint("Horizontal", 0, 1, 1, 2))
sketch16.addConstraint(Sketcher.Constraint("Radius", 0, 4.0))
sketch16.addConstraint(Sketcher.Constraint("DistanceX", 0, 3, -1, 1, 80.0))
sketch16.addConstraint(Sketcher.Constraint("DistanceY", -1, 1, 0, 3, 41.8))
sketch16.addConstraint(Sketcher.Constraint("DistanceY", -1, 1, 1, 3, 36.3))
pad9 = doc.addObject("PartDesign::Pad", "Pad008")
body.addObject(pad9)
pad9.Profile = sketch16
pad9.Length = 6
pad9.Reversed = True

# Sketch on XY plane
sketch17 = doc.addObject("Sketcher::SketchObject", "Sketch016")
body.addObject(sketch17)
sketch17.AttachmentSupport = (doc.XY_Plane, [""])
sketch17.MapMode = "FlatFace"
sketch17.AttachmentOffset = App.Placement(App.Vector(0, 0, 6), App.Rotation())
sketch17.addGeometry(Part.LineSegment(App.Vector(-98.157527, 259.8, 0), App.Vector(-98.157527, 104.64, 0)), False)
sketch17.addGeometry(Part.LineSegment(App.Vector(-98.157527, 104.64, 0), App.Vector(-60, 259.8, 0)), False)
sketch17.addGeometry(Part.LineSegment(App.Vector(-60, 259.8, 0), App.Vector(-98.157527, 259.8, 0)), False)
sketch17.addConstraint(Sketcher.Constraint("Coincident", 0, 2, 1, 1))
sketch17.addConstraint(Sketcher.Constraint("Coincident", 1, 2, 2, 1))
sketch17.addConstraint(Sketcher.Constraint("Coincident", 2, 2, 0, 1))
sketch17.addConstraint(Sketcher.Constraint("Vertical", 0))
sketch17.addConstraint(Sketcher.Constraint("Horizontal", 2))
sketch17.addConstraint(Sketcher.Constraint("DistanceX", 1, 2, -1, 1, 60.0))
sketch17.addConstraint(Sketcher.Constraint("DistanceY", 0, 2, 0, 1, 155.16))
sketch17.addConstraint(Sketcher.Constraint("DistanceY", -1, 1, 1, 2, 259.8))
sketch17.addConstraint(Sketcher.Constraint("Distance", 1, 159.783048))
pad10 = doc.addObject("PartDesign::Pad", "Pad009")
body.addObject(pad10)
pad10.Profile = sketch17
pad10.Length = 6
pad10.Reversed = True

# Sketch on XY plane
sketch18 = doc.addObject("Sketcher::SketchObject", "Sketch017")
body.addObject(sketch18)
sketch18.AttachmentSupport = (doc.XY_Plane, [""])
sketch18.MapMode = "FlatFace"
sketch18.AttachmentOffset = App.Placement(App.Vector(0, 0, 6), App.Rotation())
sketch18.addGeometry(Part.LineSegment(App.Vector(-98.157527, 259.8, 0), App.Vector(-98.157527, 258.3, 0)), False)
sketch18.addGeometry(Part.LineSegment(App.Vector(-98.157527, 258.3, 0), App.Vector(0, 258.3, 0)), False)
sketch18.addGeometry(Part.LineSegment(App.Vector(0, 258.3, 0), App.Vector(0, 259.8, 0)), False)
sketch18.addGeometry(Part.LineSegment(App.Vector(0, 259.8, 0), App.Vector(-98.157527, 259.8, 0)), False)
sketch18.addConstraint(Sketcher.Constraint("Coincident", 0, 2, 1, 1))
sketch18.addConstraint(Sketcher.Constraint("Coincident", 1, 2, 2, 1))
sketch18.addConstraint(Sketcher.Constraint("Coincident", 2, 2, 3, 1))
sketch18.addConstraint(Sketcher.Constraint("Coincident", 3, 2, 0, 1))
sketch18.addConstraint(Sketcher.Constraint("Vertical", 0))
sketch18.addConstraint(Sketcher.Constraint("Horizontal", 1))
sketch18.addConstraint(Sketcher.Constraint("Vertical", 2))
sketch18.addConstraint(Sketcher.Constraint("Horizontal", 3))
sketch18.addConstraint(Sketcher.Constraint("PointOnObject", 1, 2, -2))
sketch18.addConstraint(Sketcher.Constraint("DistanceY", 0, 2, 0, 1, 1.5))
sketch18.addConstraint(Sketcher.Constraint("DistanceY", -1, 1, 0, 2, 258.3))
sketch18.addConstraint(Sketcher.Constraint("DistanceX", 1, 1, 1, 2, 98.157527))
pocket8 = doc.addObject("PartDesign::Pocket", "Pocket007")
body.addObject(pocket8)
pocket8.Profile = sketch18
pocket8.Length = 6

doc.recompute()
